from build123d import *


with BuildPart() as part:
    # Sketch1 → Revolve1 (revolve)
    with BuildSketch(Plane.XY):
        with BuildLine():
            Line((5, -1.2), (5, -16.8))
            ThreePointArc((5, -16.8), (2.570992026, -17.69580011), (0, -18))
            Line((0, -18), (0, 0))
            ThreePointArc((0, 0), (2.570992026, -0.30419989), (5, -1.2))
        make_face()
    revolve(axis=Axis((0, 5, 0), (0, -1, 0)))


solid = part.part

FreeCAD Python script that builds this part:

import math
import FreeCAD as App
import Part
import Sketcher
from FreeCAD import Vector
Q = App.Units.Quantity

doc = App.newDocument("Part")
body = doc.addObject("PartDesign::Body", "Body")

sketch1 = doc.addObject("Sketcher::SketchObject", "Sketch")
body.addObject(sketch1)
sketch1.AttachmentSupport = (doc.XY_Plane, [""])
sketch1.MapMode = "FlatFace"
sketch1.addGeometry(Part.LineSegment(Vector(5, -17, 0), Vector(5, -1, 0)), False)
sketch1.addGeometry(Part.ArcOfCircle(Part.Circle(Vector(0, -11, 0), Vector(0, 0, 1), 11), math.radians(63), math.radians(90)), False)
sketch1.addGeometry(Part.LineSegment(Vector(0, 0, 0), Vector(0, -18, 0)), False)
sketch1.addGeometry(Part.ArcOfCircle(Part.Circle(Vector(0, -7, 0), Vector(0, 0, 1), 11), math.radians(-90), math.radians(-63)), False)
sketch1.addConstraint(Sketcher.Constraint("Coincident", 0, 2, 1, 1))
sketch1.addConstraint(Sketcher.Constraint("Coincident", 1, 2, 2, 1))
sketch1.addConstraint(Sketcher.Constraint("Coincident", 2, 2, 3, 1))
sketch1.addConstraint(Sketcher.Constraint("Coincident", 3, 2, 0, 1))
sketch1.addConstraint(Sketcher.Constraint("Vertical", 0))
sketch1.addConstraint(Sketcher.Constraint("Vertical", 2))
sketch1.addConstraint(Sketcher.Constraint("Coincident", 1, 2, -1, 1))
sketch1.addConstraint(Sketcher.Constraint("Equal", 1, 3))
sketch1.addConstraint(Sketcher.Constraint("PointOnObject", 1, 3, -2))
sketch1.addConstraint(Sketcher.Constraint("PointOnObject", 3, 3, -2))
sketch1.addConstraint(Sketcher.Constraint("DistanceY", 2, 2, 2, 1, Q("18 mm")))
sketch1.addConstraint(Sketcher.Constraint("DistanceY", 0, 1, 0, 2, Q("15.6 mm")))
sketch1.addConstraint(Sketcher.Constraint("DistanceX", -1, 1, 0, 2, Q("5 mm")))
revolution = doc.addObject("PartDesign::Revolution", "Revolution")
body.addObject(revolution)
revolution.Profile = sketch1
revolution.ReferenceAxis = (sketch1, ["V_Axis"])
revolution.Angle = 360

doc.recompute()
